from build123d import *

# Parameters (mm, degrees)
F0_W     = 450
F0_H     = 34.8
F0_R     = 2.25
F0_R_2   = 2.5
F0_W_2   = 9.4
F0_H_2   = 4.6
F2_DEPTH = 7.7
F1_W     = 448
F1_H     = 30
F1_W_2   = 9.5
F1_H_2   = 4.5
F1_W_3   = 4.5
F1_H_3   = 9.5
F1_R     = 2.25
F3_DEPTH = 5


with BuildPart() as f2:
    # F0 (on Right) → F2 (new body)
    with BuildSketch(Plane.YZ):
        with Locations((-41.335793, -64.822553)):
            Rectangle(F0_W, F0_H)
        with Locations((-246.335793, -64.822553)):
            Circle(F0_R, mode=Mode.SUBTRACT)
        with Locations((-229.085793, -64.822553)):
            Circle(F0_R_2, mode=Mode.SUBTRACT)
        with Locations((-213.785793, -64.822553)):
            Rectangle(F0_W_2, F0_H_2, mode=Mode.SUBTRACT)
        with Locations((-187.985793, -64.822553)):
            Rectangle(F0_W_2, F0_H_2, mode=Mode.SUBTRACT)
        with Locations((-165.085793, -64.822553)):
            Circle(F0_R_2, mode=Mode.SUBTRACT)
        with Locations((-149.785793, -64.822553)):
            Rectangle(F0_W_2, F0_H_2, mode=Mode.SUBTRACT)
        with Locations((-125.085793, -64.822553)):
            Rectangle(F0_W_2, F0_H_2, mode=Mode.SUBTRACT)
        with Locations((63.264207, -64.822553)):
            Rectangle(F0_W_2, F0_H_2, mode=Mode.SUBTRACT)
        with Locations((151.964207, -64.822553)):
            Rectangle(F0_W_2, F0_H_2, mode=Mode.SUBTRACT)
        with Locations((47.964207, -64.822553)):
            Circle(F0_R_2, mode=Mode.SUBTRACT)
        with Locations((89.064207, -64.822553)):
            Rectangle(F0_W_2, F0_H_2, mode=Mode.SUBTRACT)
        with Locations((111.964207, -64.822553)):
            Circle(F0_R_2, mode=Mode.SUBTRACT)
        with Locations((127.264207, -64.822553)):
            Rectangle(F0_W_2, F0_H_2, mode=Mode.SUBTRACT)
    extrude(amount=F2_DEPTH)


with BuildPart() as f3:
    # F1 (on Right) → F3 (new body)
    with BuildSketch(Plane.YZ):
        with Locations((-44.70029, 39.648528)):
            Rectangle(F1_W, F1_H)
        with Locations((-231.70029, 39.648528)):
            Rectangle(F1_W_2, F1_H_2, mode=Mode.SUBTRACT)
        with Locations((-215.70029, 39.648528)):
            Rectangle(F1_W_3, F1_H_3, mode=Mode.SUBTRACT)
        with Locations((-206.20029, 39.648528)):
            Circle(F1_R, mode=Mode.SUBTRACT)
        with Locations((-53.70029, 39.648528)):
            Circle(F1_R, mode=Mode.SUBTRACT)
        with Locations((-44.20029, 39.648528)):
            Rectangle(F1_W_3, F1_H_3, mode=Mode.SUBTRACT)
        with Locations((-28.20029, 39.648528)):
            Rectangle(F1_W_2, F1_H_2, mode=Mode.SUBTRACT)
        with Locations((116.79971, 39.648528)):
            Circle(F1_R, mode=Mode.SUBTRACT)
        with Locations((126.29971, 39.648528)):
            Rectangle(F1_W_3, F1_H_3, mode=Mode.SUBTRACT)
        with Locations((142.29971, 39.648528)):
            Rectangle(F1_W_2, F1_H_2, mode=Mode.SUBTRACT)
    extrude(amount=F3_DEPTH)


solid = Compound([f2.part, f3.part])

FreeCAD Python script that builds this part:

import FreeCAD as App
import Part
import Sketcher

V = App.Vector

doc = App.newDocument("Part")
body = doc.addObject("PartDesign::Body", "Body")

# Sketch on YZ plane
sketch1 = body.newObject("Sketcher::SketchObject", "Sketch")
sketch1.AttachmentSupport = (doc.getObject("YZ_Plane"), [""])
sketch1.MapMode = "FlatFace"
sketch1.addGeometry([
    Part.LineSegment(V(-266.335793, -47.422553, 0), V(-266.335793, -82.222553, 0)),  # 0
    Part.LineSegment(V(-266.335793, -82.222553, 0), V(183.664207, -82.222553, 0)),  # 1
    Part.LineSegment(V(183.664207, -82.222553, 0), V(183.664207, -47.422553, 0)),  # 2
    Part.LineSegment(V(183.664207, -47.422553, 0), V(-266.335793, -47.422553, 0)),  # 3
    Part.Circle(V(-246.335793, -64.822553, 0), V(0, 0, 1), 2.25),  # 4
    Part.Circle(V(-229.085793, -64.822553, 0), V(0, 0, 1), 2.5),  # 5
    Part.LineSegment(V(-209.085793, -67.122553, 0), V(-218.485793, -67.122553, 0)),  # 6
    Part.LineSegment(V(-218.485793, -67.122553, 0), V(-218.485793, -62.522553, 0)),  # 7
    Part.LineSegment(V(-218.485793, -62.522553, 0), V(-209.085793, -62.522553, 0)),  # 8
    Part.LineSegment(V(-209.085793, -62.522553, 0), V(-209.085793, -67.122553, 0)),  # 9
    Part.LineSegment(V(-183.285793, -67.122553, 0), V(-192.685793, -67.122553, 0)),  # 10
    Part.LineSegment(V(-192.685793, -67.122553, 0), V(-192.685793, -62.522553, 0)),  # 11
    Part.LineSegment(V(-192.685793, -62.522553, 0), V(-183.285793, -62.522553, 0)),  # 12
    Part.LineSegment(V(-183.285793, -62.522553, 0), V(-183.285793, -67.122553, 0)),  # 13
    Part.Circle(V(-165.085793, -64.822553, 0), V(0, 0, 1), 2.5),  # 14
    Part.LineSegment(V(-145.085793, -67.122553, 0), V(-154.485793, -67.122553, 0)),  # 15
    Part.LineSegment(V(-154.485793, -67.122553, 0), V(-154.485793, -62.522553, 0)),  # 16
    Part.LineSegment(V(-154.485793, -62.522553, 0), V(-145.085793, -62.522553, 0)),  # 17
    Part.LineSegment(V(-145.085793, -62.522553, 0), V(-145.085793, -67.122553, 0)),  # 18
    Part.LineSegment(V(-120.385793, -67.122553, 0), V(-129.785793, -67.122553, 0)),  # 19
    Part.LineSegment(V(-129.785793, -67.122553, 0), V(-129.785793, -62.522553, 0)),  # 20
    Part.LineSegment(V(-129.785793, -62.522553, 0), V(-120.385793, -62.522553, 0)),  # 21
    Part.LineSegment(V(-120.385793, -62.522553, 0), V(-120.385793, -67.122553, 0)),  # 22
    Part.Circle(V(47.964207, -64.822553, 0), V(0, 0, 1), 2.5),  # 23
    Part.LineSegment(V(67.964207, -67.122553, 0), V(58.564207, -67.122553, 0)),  # 24
    Part.LineSegment(V(58.564207, -67.122553, 0), V(58.564207, -62.522553, 0)),  # 25
    Part.LineSegment(V(58.564207, -62.522553, 0), V(67.964207, -62.522553, 0)),  # 26
    Part.LineSegment(V(67.964207, -62.522553, 0), V(67.964207, -67.122553, 0)),  # 27
    Part.LineSegment(V(93.764207, -67.122553, 0), V(84.364207, -67.122553, 0)),  # 28
    Part.LineSegment(V(84.364207, -67.122553, 0), V(84.364207, -62.522553, 0)),  # 29
    Part.LineSegment(V(84.364207, -62.522553, 0), V(93.764207, -62.522553, 0)),  # 30
    Part.LineSegment(V(93.764207, -62.522553, 0), V(93.764207, -67.122553, 0)),  # 31
    Part.Circle(V(111.964207, -64.822553, 0), V(0, 0, 1), 2.5),  # 32
    Part.LineSegment(V(131.964207, -67.122553, 0), V(122.564207, -67.122553, 0)),  # 33
    Part.LineSegment(V(122.564207, -67.122553, 0), V(122.564207, -62.522553, 0)),  # 34
    Part.LineSegment(V(122.564207, -62.522553, 0), V(131.964207, -62.522553, 0)),  # 35
    Part.LineSegment(V(131.964207, -62.522553, 0), V(131.964207, -67.122553, 0)),  # 36
    Part.LineSegment(V(156.664207, -67.122553, 0), V(147.264207, -67.122553, 0)),  # 37
    Part.LineSegment(V(147.264207, -67.122553, 0), V(147.264207, -62.522553, 0)),  # 38
    Part.LineSegment(V(147.264207, -62.522553, 0), V(156.664207, -62.522553, 0)),  # 39
    Part.LineSegment(V(156.664207, -62.522553, 0), V(156.664207, -67.122553, 0)),  # 40
], False)
sketch1.addConstraint([
    Sketcher.Constraint("Coincident", 0, 2, 1, 1),
    Sketcher.Constraint("Coincident", 1, 2, 2, 1),
    Sketcher.Constraint("Coincident", 2, 2, 3, 1),
    Sketcher.Constraint("Coincident", 3, 2, 0, 1),
    Sketcher.Constraint("Coincident", 6, 2, 7, 1),
    Sketcher.Constraint("Coincident", 7, 2, 8, 1),
    Sketcher.Constraint("Coincident", 8, 2, 9, 1),
    Sketcher.Constraint("Coincident", 9, 2, 6, 1),
    Sketcher.Constraint("Coincident", 10, 2, 11, 1),
    Sketcher.Constraint("Coincident", 11, 2, 12, 1),
    Sketcher.Constraint("Coincident", 12, 2, 13, 1),
    Sketcher.Constraint("Coincident", 13, 2, 10, 1),
    Sketcher.Constraint("Coincident", 15, 2, 16, 1),
    Sketcher.Constraint("Coincident", 16, 2, 17, 1),
    Sketcher.Constraint("Coincident", 17, 2, 18, 1),
    Sketcher.Constraint("Coincident", 18, 2, 15, 1),
    Sketcher.Constraint("Coincident", 19, 2, 20, 1),
    Sketcher.Constraint("Coincident", 20, 2, 21, 1),
    Sketcher.Constraint("Coincident", 21, 2, 22, 1),
    Sketcher.Constraint("Coincident", 22, 2, 19, 1),
    Sketcher.Constraint("Coincident", 24, 2, 25, 1),
    Sketcher.Constraint("Coincident", 25, 2, 26, 1),
    Sketcher.Constraint("Coincident", 26, 2, 27, 1),
    Sketcher.Constraint("Coincident", 27, 2, 24, 1),
    Sketcher.Constraint("Coincident", 28, 2, 29, 1),
    Sketcher.Constraint("Coincident", 29, 2, 30, 1),
    Sketcher.Constraint("Coincident", 30, 2, 31, 1),
    Sketcher.Constraint("Coincident", 31, 2, 28, 1),
    Sketcher.Constraint("Coincident", 33, 2, 34, 1),
    Sketcher.Constraint("Coincident", 34, 2, 35, 1),
    Sketcher.Constraint("Coincident", 35, 2, 36, 1),
    Sketcher.Constraint("Coincident", 36, 2, 33, 1),
    Sketcher.Constraint("Coincident", 37, 2, 38, 1),
    Sketcher.Constraint("Coincident", 38, 2, 39, 1),
    Sketcher.Constraint("Coincident", 39, 2, 40, 1),
    Sketcher.Constraint("Coincident", 40, 2, 37, 1),
    Sketcher.Constraint("Vertical", 0),
    Sketcher.Constraint("Horizontal", 1),
    Sketcher.Constraint("Vertical", 2),
    Sketcher.Constraint("Horizontal", 3),
    Sketcher.Constraint("Horizontal", 6),
    Sketcher.Constraint("Vertical", 7),
    Sketcher.Constraint("Horizontal", 8),
    Sketcher.Constraint("Vertical", 9),
    Sketcher.Constraint("Horizontal", 10),
    Sketcher.Constraint("Vertical", 11),
    Sketcher.Constraint("Horizontal", 12),
    Sketcher.Constraint("Vertical", 13),
    Sketcher.Constraint("Horizontal", 15),
    Sketcher.Constraint("Vertical", 16),
    Sketcher.Constraint("Horizontal", 17),
    Sketcher.Constraint("Vertical", 18),
    Sketcher.Constraint("Horizontal", 19),
    Sketcher.Constraint("Vertical", 20),
    Sketcher.Constraint("Horizontal", 21),
    Sketcher.Constraint("Vertical", 22),
    Sketcher.Constraint("Horizontal", 24),
    Sketcher.Constraint("Vertical", 25),
    Sketcher.Constraint("Horizontal", 26),
    Sketcher.Constraint("Vertical", 27),
    Sketcher.Constraint("Horizontal", 28),
    Sketcher.Constraint("Vertical", 29),
    Sketcher.Constraint("Horizontal", 30),
    Sketcher.Constraint("Vertical", 31),
    Sketcher.Constraint("Horizontal", 33),
    Sketcher.Constraint("Vertical", 34),
    Sketcher.Constraint("Horizontal", 35),
    Sketcher.Constraint("Vertical", 36),
    Sketcher.Constraint("Horizontal", 37),
    Sketcher.Constraint("Vertical", 38),
    Sketcher.Constraint("Horizontal", 39),
    Sketcher.Constraint("Vertical", 40),
    Sketcher.Constraint("Equal", 5, 14),
    Sketcher.Constraint("Equal", 14, 23),
    Sketcher.Constraint("Equal", 23, 32),
    Sketcher.Constraint("Horizontal", 4, 3, 5, 3),
    Sketcher.Constraint("Horizontal", 5, 3, 14, 3),
    Sketcher.Constraint("Horizontal", 14, 3, 23, 3),
    Sketcher.Constraint("Horizontal", 23, 3, 32, 3),
    Sketcher.Constraint("Horizontal", 9, 2, 10, 2),
    Sketcher.Constraint("Horizontal", 8, 2, 11, 2),
    Sketcher.Constraint("Horizontal", 13, 2, 15, 2),
    Sketcher.Constraint("Horizontal", 12, 2, 16, 2),
    Sketcher.Constraint("Horizontal", 18, 2, 19, 2),
    Sketcher.Constraint("Horizontal", 17, 2, 20, 2),
    Sketcher.Constraint("Horizontal", 22, 2, 24, 2),
    Sketcher.Constraint("Horizontal", 21, 2, 25, 2),
    Sketcher.Constraint("Horizontal", 27, 2, 28, 2),
    Sketcher.Constraint("Horizontal", 26, 2, 29, 2),
    Sketcher.Constraint("Horizontal", 31, 2, 33, 2),
    Sketcher.Constraint("Horizontal", 30, 2, 34, 2),
    Sketcher.Constraint("Horizontal", 36, 2, 37, 2),
    Sketcher.Constraint("Horizontal", 35, 2, 38, 2),
    Sketcher.Constraint("Equal", 8, 10),
    Sketcher.Constraint("Equal", 12, 15),
    Sketcher.Constraint("Equal", 17, 19),
    Sketcher.Constraint("Equal", 21, 24),
    Sketcher.Constraint("Equal", 26, 28),
    Sketcher.Constraint("Equal", 30, 33),
    Sketcher.Constraint("Equal", 35, 37),
    Sketcher.Constraint("Diameter", 5, 5.0),
    Sketcher.Constraint("Diameter", 4, 4.5),
    Sketcher.Constraint("DistanceX", 1, 1, 1, 2, 450.0),
    Sketcher.Constraint("DistanceX", 6, 2, 6, 1, 9.4),
    Sketcher.Constraint("DistanceY", 0, 2, 0, 1, 34.8),
    Sketcher.Constraint("DistanceY", 7, 1, 7, 2, 4.6),
    Sketcher.Constraint("DistanceX", 5, 3, 14, 3, 64.0),
    Sketcher.Constraint("DistanceX", 23, 3, 32, 3, 64.0),
    Sketcher.Constraint("DistanceX", 0, 2, 4, 3, 20.0),
    Sketcher.Constraint("DistanceX", 5, 3, 8, 2, 20.0),
    Sketcher.Constraint("DistanceX", 14, 3, 17, 2, 20.0),
    Sketcher.Constraint("DistanceX", 23, 3, 26, 2, 20.0),
    Sketcher.Constraint("DistanceX", 32, 3, 35, 2, 20.0),
    Sketcher.Constraint("DistanceX", 39, 2, 2, 2, 27.0),
    Sketcher.Constraint("DistanceX", 4, 3, 23, 3, 294.3),
    Sketcher.Constraint("DistanceY", 0, 2, 4, 3, 17.4),
    Sketcher.Constraint("DistanceY", 6, 2, 5, 3, 2.3),
    Sketcher.Constraint("DistanceX", 9, 2, 10, 2, 16.4),
    Sketcher.Constraint("DistanceX", 18, 2, 19, 2, 15.3),
    Sketcher.Constraint("DistanceX", 27, 2, 28, 2, 16.4),
    Sketcher.Constraint("DistanceX", 4, 3, 5, 3, 17.25),
    Sketcher.Constraint("DistanceX", 4, 3, -1, 1, 246.335793),
    Sketcher.Constraint("DistanceY", 4, 3, -1, 1, 64.822553),
])
pad1 = body.newObject("PartDesign::Pad", "Pad")
pad1.Profile = sketch1
pad1.Length = 7.7
body2 = doc.addObject("PartDesign::Body", "Body001")

# Sketch on YZ plane
sketch2 = body2.newObject("Sketcher::SketchObject", "Sketch001")
sketch2.AttachmentSupport = (doc.getObject("YZ_Plane001"), [""])
sketch2.MapMode = "FlatFace"
sketch2.addGeometry([
    Part.LineSegment(V(-268.70029, 54.648528, 0), V(-268.70029, 24.648528, 0)),  # 0
    Part.LineSegment(V(-268.70029, 24.648528, 0), V(179.29971, 24.648528, 0)),  # 1
    Part.LineSegment(V(179.29971, 24.648528, 0), V(179.29971, 54.648528, 0)),  # 2
    Part.LineSegment(V(179.29971, 54.648528, 0), V(-268.70029, 54.648528, 0)),  # 3
    Part.LineSegment(V(-226.95029, 37.398528, 0), V(-236.45029, 37.398528, 0)),  # 4
    Part.LineSegment(V(-236.45029, 37.398528, 0), V(-236.45029, 41.898528, 0)),  # 5
    Part.LineSegment(V(-236.45029, 41.898528, 0), V(-226.95029, 41.898528, 0)),  # 6
    Part.LineSegment(V(-226.95029, 41.898528, 0), V(-226.95029, 37.398528, 0)),  # 7
    Part.LineSegment(V(-213.45029, 34.898528, 0), V(-217.95029, 34.898528, 0)),  # 8
    Part.LineSegment(V(-217.95029, 34.898528, 0), V(-217.95029, 44.398528, 0)),  # 9
    Part.LineSegment(V(-217.95029, 44.398528, 0), V(-213.45029, 44.398528, 0)),  # 10
    Part.LineSegment(V(-213.45029, 44.398528, 0), V(-213.45029, 34.898528, 0)),  # 11
    Part.Circle(V(-206.20029, 39.648528, 0), V(0, 0, 1), 2.25),  # 12
    Part.Circle(V(-53.70029, 39.648528, 0), V(0, 0, 1), 2.25),  # 13
    Part.LineSegment(V(-41.95029, 34.898528, 0), V(-46.45029, 34.898528, 0)),  # 14
    Part.LineSegment(V(-46.45029, 34.898528, 0), V(-46.45029, 44.398528, 0)),  # 15
    Part.LineSegment(V(-46.45029, 44.398528, 0), V(-41.95029, 44.398528, 0)),  # 16
    Part.LineSegment(V(-41.95029, 44.398528, 0), V(-41.95029, 34.898528, 0)),  # 17
    Part.LineSegment(V(-23.45029, 37.398528, 0), V(-32.95029, 37.398528, 0)),  # 18
    Part.LineSegment(V(-32.95029, 37.398528, 0), V(-32.95029, 41.898528, 0)),  # 19
    Part.LineSegment(V(-32.95029, 41.898528, 0), V(-23.45029, 41.898528, 0)),  # 20
    Part.LineSegment(V(-23.45029, 41.898528, 0), V(-23.45029, 37.398528, 0)),  # 21
    Part.Circle(V(116.79971, 39.648528, 0), V(0, 0, 1), 2.25),  # 22
    Part.LineSegment(V(128.54971, 34.898528, 0), V(124.04971, 34.898528, 0)),  # 23
    Part.LineSegment(V(124.04971, 34.898528, 0), V(124.04971, 44.398528, 0)),  # 24
    Part.LineSegment(V(124.04971, 44.398528, 0), V(128.54971, 44.398528, 0)),  # 25
    Part.LineSegment(V(128.54971, 44.398528, 0), V(128.54971, 34.898528, 0)),  # 26
    Part.LineSegment(V(147.04971, 37.398528, 0), V(137.54971, 37.398528, 0)),  # 27
    Part.LineSegment(V(137.54971, 37.398528, 0), V(137.54971, 41.898528, 0)),  # 28
    Part.LineSegment(V(137.54971, 41.898528, 0), V(147.04971, 41.898528, 0)),  # 29
    Part.LineSegment(V(147.04971, 41.898528, 0), V(147.04971, 37.398528, 0)),  # 30
], False)
sketch2.addConstraint([
    Sketcher.Constraint("Coincident", 0, 2, 1, 1),
    Sketcher.Constraint("Coincident", 1, 2, 2, 1),
    Sketcher.Constraint("Coincident", 2, 2, 3, 1),
    Sketcher.Constraint("Coincident", 3, 2, 0, 1),
    Sketcher.Constraint("Coincident", 4, 2, 5, 1),
    Sketcher.Constraint("Coincident", 5, 2, 6, 1),
    Sketcher.Constraint("Coincident", 6, 2, 7, 1),
    Sketcher.Constraint("Coincident", 7, 2, 4, 1),
    Sketcher.Constraint("Coincident", 8, 2, 9, 1),
    Sketcher.Constraint("Coincident", 9, 2, 10, 1),
    Sketcher.Constraint("Coincident", 10, 2, 11, 1),
    Sketcher.Constraint("Coincident", 11, 2, 8, 1),
    Sketcher.Constraint("Coincident", 14, 2, 15, 1),
    Sketcher.Constraint("Coincident", 15, 2, 16, 1),
    Sketcher.Constraint("Coincident", 16, 2, 17, 1),
    Sketcher.Constraint("Coincident", 17, 2, 14, 1),
    Sketcher.Constraint("Coincident", 18, 2, 19, 1),
    Sketcher.Constraint("Coincident", 19, 2, 20, 1),
    Sketcher.Constraint("Coincident", 20, 2, 21, 1),
    Sketcher.Constraint("Coincident", 21, 2, 18, 1),
    Sketcher.Constraint("Coincident", 23, 2, 24, 1),
    Sketcher.Constraint("Coincident", 24, 2, 25, 1),
    Sketcher.Constraint("Coincident", 25, 2, 26, 1),
    Sketcher.Constraint("Coincident", 26, 2, 23, 1),
    Sketcher.Constraint("Coincident", 27, 2, 28, 1),
    Sketcher.Constraint("Coincident", 28, 2, 29, 1),
    Sketcher.Constraint("Coincident", 29, 2, 30, 1),
    Sketcher.Constraint("Coincident", 30, 2, 27, 1),
    Sketcher.Constraint("Vertical", 0),
    Sketcher.Constraint("Horizontal", 1),
    Sketcher.Constraint("Vertical", 2),
    Sketcher.Constraint("Horizontal", 3),
    Sketcher.Constraint("Horizontal", 4),
    Sketcher.Constraint("Vertical", 5),
    Sketcher.Constraint("Horizontal", 6),
    Sketcher.Constraint("Vertical", 7),
    Sketcher.Constraint("Horizontal", 8),
    Sketcher.Constraint("Vertical", 9),
    Sketcher.Constraint("Horizontal", 10),
    Sketcher.Constraint("Vertical", 11),
    Sketcher.Constraint("Horizontal", 14),
    Sketcher.Constraint("Vertical", 15),
    Sketcher.Constraint("Horizontal", 16),
    Sketcher.Constraint("Vertical", 17),
    Sketcher.Constraint("Horizontal", 18),
    Sketcher.Constraint("Vertical", 19),
    Sketcher.Constraint("Horizontal", 20),
    Sketcher.Constraint("Vertical", 21),
    Sketcher.Constraint("Horizontal", 23),
    Sketcher.Constraint("Vertical", 24),
    Sketcher.Constraint("Horizontal", 25),
    Sketcher.Constraint("Vertical", 26),
    Sketcher.Constraint("Horizontal", 27),
    Sketcher.Constraint("Vertical", 28),
    Sketcher.Constraint("Horizontal", 29),
    Sketcher.Constraint("Vertical", 30),
    Sketcher.Constraint("Equal", 12, 13),
    Sketcher.Constraint("Equal", 13, 22),
    Sketcher.Constraint("Horizontal", 12, 3, 13, 3),
    Sketcher.Constraint("Horizontal", 13, 3, 22, 3),
    Sketcher.Constraint("Horizontal", 11, 2, 14, 2),
    Sketcher.Constraint("Horizontal", 10, 2, 15, 2),
    Sketcher.Constraint("Horizontal", 7, 2, 18, 2),
    Sketcher.Constraint("Horizontal", 6, 2, 19, 2),
    Sketcher.Constraint("Horizontal", 17, 2, 23, 2),
    Sketcher.Constraint("Horizontal", 16, 2, 24, 2),
    Sketcher.Constraint("Horizontal", 21, 2, 27, 2),
    Sketcher.Constraint("Horizontal", 20, 2, 28, 2),
    Sketcher.Constraint("Equal", 10, 14),
    Sketcher.Constraint("Equal", 6, 18),
    Sketcher.Constraint("Equal", 16, 23),
    Sketcher.Constraint("Equal", 20, 27),
    Sketcher.Constraint("Equal", 25, 5),
    Sketcher.Constraint("Equal", 29, 9),
    Sketcher.Constraint("Diameter", 12, 4.5),
    Sketcher.Constraint("DistanceX", 1, 1, 1, 2, 448.0),
    Sketcher.Constraint("DistanceY", 0, 2, 0, 1, 30.0),
    Sketcher.Constraint("DistanceX", 4, 2, 4, 1, 9.5),
    Sketcher.Constraint("DistanceX", 8, 2, 8, 1, 4.5),
    Sketcher.Constraint("DistanceX", 12, 3, 22, 3, 323.0),
    Sketcher.Constraint("DistanceY", 0, 2, 12, 3, 15.0),
    Sketcher.Constraint("DistanceX", 0, 2, 13, 3, 215.0),
    Sketcher.Constraint("DistanceX", 7, 2, 8, 2, 9.0),
    Sketcher.Constraint("DistanceY", 8, 2, 6, 2, 7.0),
    Sketcher.Constraint("DistanceX", 11, 2, 14, 2, 167.0),
    Sketcher.Constraint("DistanceX", 17, 2, 18, 2, 9.0),
    Sketcher.Constraint("DistanceX", 26, 2, 27, 2, 9.0),
    Sketcher.Constraint("DistanceX", 12, 3, 13, 3, 152.5),
    Sketcher.Constraint("DistanceX", 21, 2, 23, 2, 147.5),
    Sketcher.Constraint("DistanceX", 4, 2, 12, 3, 30.25),
    Sketcher.Constraint("DistanceY", 4, 2, 12, 3, 2.25),
    Sketcher.Constraint("DistanceX", 12, 3, -1, 1, 206.20029),
    Sketcher.Constraint("DistanceY", -1, 1, 12, 3, 39.648528),
])
pad2 = body2.newObject("PartDesign::Pad", "Pad001")
pad2.Profile = sketch2
pad2.Length = 5

doc.recompute()
